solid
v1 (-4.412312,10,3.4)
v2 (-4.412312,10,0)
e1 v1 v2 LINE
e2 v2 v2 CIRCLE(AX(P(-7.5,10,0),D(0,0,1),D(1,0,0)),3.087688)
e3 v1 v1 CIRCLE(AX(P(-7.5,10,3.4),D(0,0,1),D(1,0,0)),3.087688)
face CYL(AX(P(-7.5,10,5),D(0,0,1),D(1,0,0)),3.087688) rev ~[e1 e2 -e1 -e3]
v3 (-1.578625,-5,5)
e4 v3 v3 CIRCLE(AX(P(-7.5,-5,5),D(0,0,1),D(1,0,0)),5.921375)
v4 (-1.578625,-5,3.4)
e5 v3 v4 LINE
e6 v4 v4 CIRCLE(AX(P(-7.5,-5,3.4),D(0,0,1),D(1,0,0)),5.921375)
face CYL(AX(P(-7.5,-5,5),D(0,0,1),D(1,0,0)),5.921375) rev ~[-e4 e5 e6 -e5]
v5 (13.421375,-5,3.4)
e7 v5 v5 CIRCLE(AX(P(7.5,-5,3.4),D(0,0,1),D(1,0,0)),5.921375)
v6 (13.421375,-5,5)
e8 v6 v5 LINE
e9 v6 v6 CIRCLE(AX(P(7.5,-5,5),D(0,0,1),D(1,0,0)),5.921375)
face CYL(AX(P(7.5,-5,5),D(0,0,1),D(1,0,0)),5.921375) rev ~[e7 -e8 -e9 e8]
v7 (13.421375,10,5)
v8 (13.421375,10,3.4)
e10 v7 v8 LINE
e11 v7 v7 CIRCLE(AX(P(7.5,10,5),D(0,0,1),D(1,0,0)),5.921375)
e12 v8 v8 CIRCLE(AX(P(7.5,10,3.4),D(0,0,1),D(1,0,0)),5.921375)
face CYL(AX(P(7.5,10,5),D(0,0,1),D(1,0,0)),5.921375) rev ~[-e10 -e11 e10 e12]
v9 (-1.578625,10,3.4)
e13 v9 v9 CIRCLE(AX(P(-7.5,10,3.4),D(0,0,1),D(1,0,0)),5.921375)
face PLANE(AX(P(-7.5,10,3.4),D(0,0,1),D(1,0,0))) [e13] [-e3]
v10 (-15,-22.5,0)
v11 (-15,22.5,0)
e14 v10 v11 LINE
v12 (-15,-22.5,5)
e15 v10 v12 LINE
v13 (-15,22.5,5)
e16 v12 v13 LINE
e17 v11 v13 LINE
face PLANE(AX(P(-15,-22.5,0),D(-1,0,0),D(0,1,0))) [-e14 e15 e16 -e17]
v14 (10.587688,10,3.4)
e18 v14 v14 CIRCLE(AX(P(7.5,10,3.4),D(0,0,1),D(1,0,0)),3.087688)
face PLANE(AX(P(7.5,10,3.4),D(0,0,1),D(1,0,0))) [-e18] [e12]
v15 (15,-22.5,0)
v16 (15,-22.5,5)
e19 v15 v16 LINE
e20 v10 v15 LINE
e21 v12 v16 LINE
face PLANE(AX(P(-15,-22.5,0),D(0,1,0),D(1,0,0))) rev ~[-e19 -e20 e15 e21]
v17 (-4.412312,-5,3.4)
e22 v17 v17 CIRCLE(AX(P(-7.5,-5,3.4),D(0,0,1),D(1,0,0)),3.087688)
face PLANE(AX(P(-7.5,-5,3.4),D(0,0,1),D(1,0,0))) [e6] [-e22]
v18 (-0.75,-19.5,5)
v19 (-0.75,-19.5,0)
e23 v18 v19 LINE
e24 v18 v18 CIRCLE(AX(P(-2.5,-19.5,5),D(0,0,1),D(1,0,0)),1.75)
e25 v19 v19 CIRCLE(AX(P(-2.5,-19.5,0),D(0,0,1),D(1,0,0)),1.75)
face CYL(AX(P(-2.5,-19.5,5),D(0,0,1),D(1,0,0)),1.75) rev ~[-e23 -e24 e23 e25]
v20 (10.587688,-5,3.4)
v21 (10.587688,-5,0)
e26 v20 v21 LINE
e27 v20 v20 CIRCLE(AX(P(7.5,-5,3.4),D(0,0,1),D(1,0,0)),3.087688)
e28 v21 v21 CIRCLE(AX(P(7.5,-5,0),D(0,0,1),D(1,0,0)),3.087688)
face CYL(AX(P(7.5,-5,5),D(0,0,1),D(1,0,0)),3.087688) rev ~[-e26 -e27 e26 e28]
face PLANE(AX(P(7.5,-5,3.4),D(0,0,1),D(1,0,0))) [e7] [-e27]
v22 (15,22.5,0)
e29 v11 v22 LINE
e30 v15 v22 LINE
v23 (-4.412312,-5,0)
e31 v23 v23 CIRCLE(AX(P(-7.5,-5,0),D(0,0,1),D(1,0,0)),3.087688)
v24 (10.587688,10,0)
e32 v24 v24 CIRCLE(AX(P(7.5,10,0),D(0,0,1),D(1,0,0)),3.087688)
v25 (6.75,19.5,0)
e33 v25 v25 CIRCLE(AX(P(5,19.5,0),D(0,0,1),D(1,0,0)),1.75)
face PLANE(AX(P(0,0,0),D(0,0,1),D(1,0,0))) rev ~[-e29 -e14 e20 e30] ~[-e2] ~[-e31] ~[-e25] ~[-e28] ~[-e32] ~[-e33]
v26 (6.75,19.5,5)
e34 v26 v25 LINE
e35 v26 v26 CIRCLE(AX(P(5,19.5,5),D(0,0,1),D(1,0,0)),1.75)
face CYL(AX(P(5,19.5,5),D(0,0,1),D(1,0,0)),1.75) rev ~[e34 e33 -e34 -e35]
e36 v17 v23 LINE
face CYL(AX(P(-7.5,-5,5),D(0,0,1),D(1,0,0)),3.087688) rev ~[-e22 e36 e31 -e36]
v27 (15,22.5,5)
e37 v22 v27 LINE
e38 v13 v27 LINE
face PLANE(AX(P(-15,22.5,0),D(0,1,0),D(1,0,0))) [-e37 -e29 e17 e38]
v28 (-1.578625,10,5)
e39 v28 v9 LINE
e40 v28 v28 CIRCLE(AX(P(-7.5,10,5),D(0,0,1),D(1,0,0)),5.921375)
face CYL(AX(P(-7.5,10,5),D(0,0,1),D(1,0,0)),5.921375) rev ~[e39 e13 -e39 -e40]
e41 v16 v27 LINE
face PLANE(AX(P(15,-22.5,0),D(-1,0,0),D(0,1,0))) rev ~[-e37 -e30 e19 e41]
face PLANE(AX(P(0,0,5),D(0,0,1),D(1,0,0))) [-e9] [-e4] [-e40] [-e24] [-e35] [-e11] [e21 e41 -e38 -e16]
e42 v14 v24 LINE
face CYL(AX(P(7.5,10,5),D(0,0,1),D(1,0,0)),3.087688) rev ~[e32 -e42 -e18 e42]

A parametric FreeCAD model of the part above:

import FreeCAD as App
import Part
import Sketcher

V = App.Vector

doc = App.newDocument("Part")
body = doc.addObject("PartDesign::Body", "Body")

# Sketch on XY plane
sketch1 = body.newObject("Sketcher::SketchObject", "Sketch")
sketch1.AttachmentSupport = (doc.getObject("XY_Plane"), [""])
sketch1.MapMode = "FlatFace"
sketch1.addGeometry([
    Part.LineSegment(V(-15, 22.5, 0), V(-15, -22.5, 0)),
    Part.LineSegment(V(-15, -22.5, 0), V(15, -22.5, 0)),
    Part.LineSegment(V(15, -22.5, 0), V(15, 22.5, 0)),
    Part.LineSegment(V(15, 22.5, 0), V(-15, 22.5, 0)),
], False)
sketch1.addConstraint([
    Sketcher.Constraint("Coincident", 0, 2, 1, 1),
    Sketcher.Constraint("Coincident", 1, 2, 2, 1),
    Sketcher.Constraint("Coincident", 2, 2, 3, 1),
    Sketcher.Constraint("Coincident", 3, 2, 0, 1),
    Sketcher.Constraint("Vertical", 0),
    Sketcher.Constraint("Horizontal", 1),
    Sketcher.Constraint("Vertical", 2),
    Sketcher.Constraint("Horizontal", 3),
    Sketcher.Constraint("Symmetric", 0, 2, 2, 2, -1, 1),
    Sketcher.Constraint("DistanceX", 1, 1, 1, 2, 30.0),
    Sketcher.Constraint("DistanceY", 0, 2, 0, 1, 45.0),
])
pad1 = body.newObject("PartDesign::Pad", "Pad")
pad1.Profile = sketch1
pad1.Length = 5

# Sketch on XY plane
sketch2 = body.newObject("Sketcher::SketchObject", "Sketch001")
sketch2.AttachmentSupport = (doc.getObject("XY_Plane"), [""])
sketch2.MapMode = "FlatFace"
sketch2.AttachmentOffset = App.Placement(V(0, 0, 5), App.Rotation())
sketch2.addGeometry([
    Part.Circle(V(-7.5, 10, 0), V(0, 0, 1), 3.087688),
    Part.Circle(V(-7.5, -5, 0), V(0, 0, 1), 3.087688),
    Part.Circle(V(7.5, 10, 0), V(0, 0, 1), 3.087688),
    Part.Circle(V(7.5, -5, 0), V(0, 0, 1), 3.087688),
], False)
sketch2.addConstraint([
    Sketcher.Constraint("Equal", 0, 1),
    Sketcher.Constraint("Equal", 1, 2),
    Sketcher.Constraint("Equal", 2, 3),
    Sketcher.Constraint("Symmetric", 0, 3, 2, 3, -2),
    Sketcher.Constraint("Symmetric", 1, 3, 3, 3, -2),
    Sketcher.Constraint("Vertical", 0, 3, 1, 3),
    Sketcher.Constraint("DistanceY", -1, 1, 0, 3, 10.0),
    Sketcher.Constraint("DistanceY", 1, 3, -1, 1, 5.0),
    Sketcher.Constraint("DistanceX", 0, 3, 2, 3, 15.0),
    Sketcher.Constraint("Diameter", 0, 6.175376),
])
pocket1 = body.newObject("PartDesign::Pocket", "Pocket")
pocket1.Profile = sketch2
pocket1.Type = "ThroughAll"

# Sketch on XY plane
sketch3 = body.newObject("Sketcher::SketchObject", "Sketch002")
sketch3.AttachmentSupport = (doc.getObject("XY_Plane"), [""])
sketch3.MapMode = "FlatFace"
sketch3.AttachmentOffset = App.Placement(V(0, 0, 5), App.Rotation())
sketch3.addGeometry([
    Part.Circle(V(-7.5, 10, 0), V(0, 0, 1), 5.921375),
    Part.Circle(V(7.5, 10, 0), V(0, 0, 1), 5.921375),
    Part.Circle(V(7.5, -5, 0), V(0, 0, 1), 5.921375),
    Part.Circle(V(-7.5, -5, 0), V(0, 0, 1), 5.921375),
], False)
sketch3.addConstraint([
    Sketcher.Constraint("Equal", 0, 1),
    Sketcher.Constraint("Equal", 1, 2),
    Sketcher.Constraint("Equal", 2, 3),
    Sketcher.Constraint("Symmetric", 0, 3, 1, 3, -2),
    Sketcher.Constraint("Symmetric", 2, 3, 3, 3, -2),
    Sketcher.Constraint("Vertical", 1, 3, 2, 3),
    Sketcher.Constraint("DistanceY", -1, 1, 0, 3, 10.0),
    Sketcher.Constraint("DistanceY", 2, 3, -1, 1, 5.0),
    Sketcher.Constraint("DistanceX", 0, 3, 1, 3, 15.0),
    Sketcher.Constraint("Diameter", 0, 11.84275),
])
pocket2 = body.newObject("PartDesign::Pocket", "Pocket001")
pocket2.Profile = sketch3
pocket2.Length = 1.6

# Sketch on XY plane
sketch4 = body.newObject("Sketcher::SketchObject", "Sketch003")
sketch4.AttachmentSupport = (doc.getObject("XY_Plane"), [""])
sketch4.MapMode = "FlatFace"
sketch4.AttachmentOffset = App.Placement(V(0, 0, 5), App.Rotation())
sketch4.addGeometry([
    Part.Circle(V(5, 19.5, 0), V(0, 0, 1), 1.75),
    Part.Circle(V(-2.5, -19.5, 0), V(0, 0, 1), 1.75),
], False)
sketch4.addConstraint([
    Sketcher.Constraint("Equal", 0, 1),
    Sketcher.Constraint("Diameter", 0, 3.5),
    Sketcher.Constraint("DistanceX", -1, 1, 0, 3, 5.0),
    Sketcher.Constraint("DistanceY", 1, 3, 0, 3, 39.0),
    Sketcher.Constraint("DistanceY", -1, 1, 0, 3, 19.5),
    Sketcher.Constraint("DistanceX", 1, 3, -1, 1, 2.5),
])
pocket3 = body.newObject("PartDesign::Pocket", "Pocket002")
pocket3.Profile = sketch4
pocket3.Type = "ThroughAll"

doc.recompute()
